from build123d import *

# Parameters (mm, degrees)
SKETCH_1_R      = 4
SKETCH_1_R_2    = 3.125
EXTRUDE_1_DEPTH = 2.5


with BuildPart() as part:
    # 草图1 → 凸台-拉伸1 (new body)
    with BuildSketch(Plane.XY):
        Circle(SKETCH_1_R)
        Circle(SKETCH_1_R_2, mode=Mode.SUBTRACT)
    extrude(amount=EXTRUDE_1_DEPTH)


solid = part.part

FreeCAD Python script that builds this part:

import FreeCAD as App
import Part
import Sketcher
from FreeCAD import Vector

doc = App.newDocument("Part")
body = doc.addObject("PartDesign::Body", "Body")

# Sketch on XY plane
sketch1 = body.newObject("Sketcher::SketchObject", "Sketch")
sketch1.AttachmentSupport = (doc.getObject("XY_Plane"), [""])
sketch1.MapMode = "FlatFace"
sketch1.addGeometry([
    Part.Circle(Vector(0, 0, 0), Vector(0, 0, 1), 4),
    Part.Circle(Vector(0, 0, 0), Vector(0, 0, 1), 3.1),
], False)
sketch1.addConstraint([
    Sketcher.Constraint("Coincident", 0, 3, -1, 1),
    Sketcher.Constraint("Coincident", 1, 3, -1, 1),
    Sketcher.Constraint("Diameter", 0, 8.0),
    Sketcher.Constraint("Diameter", 1, 6.25),
])
pad1 = body.newObject("PartDesign::Pad", "Pad")
pad1.Profile = sketch1
pad1.Length = 2.5

doc.recompute()
